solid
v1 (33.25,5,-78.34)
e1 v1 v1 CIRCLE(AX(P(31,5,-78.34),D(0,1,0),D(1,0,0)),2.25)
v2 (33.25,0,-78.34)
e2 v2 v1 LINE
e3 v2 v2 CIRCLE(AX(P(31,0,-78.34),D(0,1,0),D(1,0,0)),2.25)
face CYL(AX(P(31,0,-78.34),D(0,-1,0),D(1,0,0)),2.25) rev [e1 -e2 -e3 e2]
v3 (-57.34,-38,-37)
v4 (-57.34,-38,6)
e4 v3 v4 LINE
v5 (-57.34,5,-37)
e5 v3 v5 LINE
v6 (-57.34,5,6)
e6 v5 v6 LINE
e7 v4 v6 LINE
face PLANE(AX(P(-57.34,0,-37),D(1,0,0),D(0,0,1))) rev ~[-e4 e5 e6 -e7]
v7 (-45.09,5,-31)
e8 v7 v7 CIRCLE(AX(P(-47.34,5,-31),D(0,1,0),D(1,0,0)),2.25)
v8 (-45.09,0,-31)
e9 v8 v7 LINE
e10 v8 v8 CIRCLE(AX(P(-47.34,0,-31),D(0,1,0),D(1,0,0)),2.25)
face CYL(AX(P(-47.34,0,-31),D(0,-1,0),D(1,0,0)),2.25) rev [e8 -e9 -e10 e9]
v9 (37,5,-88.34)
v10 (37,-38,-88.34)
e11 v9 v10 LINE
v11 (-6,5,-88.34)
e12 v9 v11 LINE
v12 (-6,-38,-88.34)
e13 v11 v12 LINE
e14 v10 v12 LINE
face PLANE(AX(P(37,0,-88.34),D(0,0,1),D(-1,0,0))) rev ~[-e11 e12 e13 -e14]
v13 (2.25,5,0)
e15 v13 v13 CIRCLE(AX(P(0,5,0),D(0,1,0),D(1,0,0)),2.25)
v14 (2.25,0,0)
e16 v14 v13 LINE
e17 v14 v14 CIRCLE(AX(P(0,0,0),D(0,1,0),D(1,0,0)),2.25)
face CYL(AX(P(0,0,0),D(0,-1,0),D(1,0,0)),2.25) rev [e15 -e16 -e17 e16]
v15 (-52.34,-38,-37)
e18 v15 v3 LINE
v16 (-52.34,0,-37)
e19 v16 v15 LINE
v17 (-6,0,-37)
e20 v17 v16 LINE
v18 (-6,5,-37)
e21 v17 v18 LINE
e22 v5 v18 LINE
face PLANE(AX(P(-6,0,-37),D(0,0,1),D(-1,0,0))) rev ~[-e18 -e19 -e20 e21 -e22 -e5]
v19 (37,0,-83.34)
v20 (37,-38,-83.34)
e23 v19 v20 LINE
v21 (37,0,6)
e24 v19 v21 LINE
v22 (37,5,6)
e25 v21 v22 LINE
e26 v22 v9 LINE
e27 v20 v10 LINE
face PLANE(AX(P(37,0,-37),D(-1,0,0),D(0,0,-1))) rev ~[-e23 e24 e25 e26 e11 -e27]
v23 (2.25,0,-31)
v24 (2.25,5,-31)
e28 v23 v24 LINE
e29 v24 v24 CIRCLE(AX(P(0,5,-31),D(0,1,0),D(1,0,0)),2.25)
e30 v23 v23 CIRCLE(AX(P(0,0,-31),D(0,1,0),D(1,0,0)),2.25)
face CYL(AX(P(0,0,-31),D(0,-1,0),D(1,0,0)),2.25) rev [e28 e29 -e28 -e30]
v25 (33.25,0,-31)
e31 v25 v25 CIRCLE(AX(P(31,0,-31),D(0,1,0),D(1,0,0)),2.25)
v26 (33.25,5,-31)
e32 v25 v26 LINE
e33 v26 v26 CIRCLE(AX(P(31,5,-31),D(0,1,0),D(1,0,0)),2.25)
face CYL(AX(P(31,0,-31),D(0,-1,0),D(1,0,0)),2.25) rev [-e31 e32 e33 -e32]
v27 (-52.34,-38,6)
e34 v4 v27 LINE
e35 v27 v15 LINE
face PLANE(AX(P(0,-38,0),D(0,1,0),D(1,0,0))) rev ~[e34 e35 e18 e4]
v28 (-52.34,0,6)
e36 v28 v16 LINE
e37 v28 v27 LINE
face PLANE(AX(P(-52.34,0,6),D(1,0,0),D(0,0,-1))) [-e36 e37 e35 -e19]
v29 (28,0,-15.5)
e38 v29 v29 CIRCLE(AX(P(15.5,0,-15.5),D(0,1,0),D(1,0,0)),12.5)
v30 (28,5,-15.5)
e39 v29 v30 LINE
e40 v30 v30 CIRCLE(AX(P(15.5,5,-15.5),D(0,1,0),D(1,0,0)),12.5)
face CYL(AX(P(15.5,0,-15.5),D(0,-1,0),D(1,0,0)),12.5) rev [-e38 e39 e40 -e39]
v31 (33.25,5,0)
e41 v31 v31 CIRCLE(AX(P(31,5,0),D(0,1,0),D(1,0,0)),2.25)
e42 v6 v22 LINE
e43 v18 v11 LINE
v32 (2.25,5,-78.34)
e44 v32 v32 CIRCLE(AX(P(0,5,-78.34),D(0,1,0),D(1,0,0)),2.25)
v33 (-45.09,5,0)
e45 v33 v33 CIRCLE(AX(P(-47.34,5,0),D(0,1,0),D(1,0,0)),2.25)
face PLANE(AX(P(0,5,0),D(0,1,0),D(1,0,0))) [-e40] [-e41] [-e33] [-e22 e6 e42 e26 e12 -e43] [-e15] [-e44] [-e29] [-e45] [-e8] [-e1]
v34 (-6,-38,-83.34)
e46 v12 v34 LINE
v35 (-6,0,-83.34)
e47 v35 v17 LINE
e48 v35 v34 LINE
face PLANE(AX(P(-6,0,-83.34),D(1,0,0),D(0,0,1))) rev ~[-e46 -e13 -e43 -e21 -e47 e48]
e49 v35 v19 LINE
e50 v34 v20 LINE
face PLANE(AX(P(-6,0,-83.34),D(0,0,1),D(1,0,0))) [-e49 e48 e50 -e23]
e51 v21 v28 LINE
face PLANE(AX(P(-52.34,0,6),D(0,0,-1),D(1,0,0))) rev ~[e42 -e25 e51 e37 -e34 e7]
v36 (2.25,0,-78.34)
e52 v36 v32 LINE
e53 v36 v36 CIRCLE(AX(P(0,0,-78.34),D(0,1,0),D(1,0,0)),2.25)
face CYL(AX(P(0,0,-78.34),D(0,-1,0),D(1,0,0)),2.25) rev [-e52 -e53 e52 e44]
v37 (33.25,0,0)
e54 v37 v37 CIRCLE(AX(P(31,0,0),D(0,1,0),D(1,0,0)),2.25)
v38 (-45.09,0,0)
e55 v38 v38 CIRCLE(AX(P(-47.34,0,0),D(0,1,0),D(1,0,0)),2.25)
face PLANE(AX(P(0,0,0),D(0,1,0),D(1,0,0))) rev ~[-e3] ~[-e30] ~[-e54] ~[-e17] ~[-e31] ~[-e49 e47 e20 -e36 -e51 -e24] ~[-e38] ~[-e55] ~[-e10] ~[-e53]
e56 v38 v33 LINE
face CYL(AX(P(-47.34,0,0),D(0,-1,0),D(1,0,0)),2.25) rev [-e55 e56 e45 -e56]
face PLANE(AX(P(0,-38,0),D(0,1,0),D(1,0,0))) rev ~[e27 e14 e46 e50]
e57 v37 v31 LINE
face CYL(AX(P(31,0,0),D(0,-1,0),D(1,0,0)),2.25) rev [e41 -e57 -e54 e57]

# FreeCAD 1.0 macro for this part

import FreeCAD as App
import Part
import Sketcher
Q = App.Units.Quantity

doc = App.newDocument("Part")
params = doc.addObject("Spreadsheet::Sheet", "Params")
for row, (alias, value) in enumerate([
    ("sketch1_diameter", "25 mm"),
    ("sketch1_diameter2", "4.5 mm"),
    ("sketch1_width", "43 mm"),
    ("sketch1_width2", "51.34 mm"),
    ("pad1_length", "5 mm"),
    ("sketch2_width", "43 mm"),
    ("sketch2_width2", "5 mm"),
    ("pad2_length", "38 mm"),
], start=1):
    params.set(f"A{row}", alias)
    params.set(f"B{row}", "=" + value)
    params.setAlias(f"B{row}", alias)

body = doc.addObject("PartDesign::Body", "Body")

# Sketch on XZ plane
sketch1 = body.newObject("Sketcher::SketchObject", "Sketch")
sketch1.AttachmentSupport = (doc.getObject("XZ_Plane"), [""])
sketch1.MapMode = "FlatFace"
sketch1.addGeometry([
    Part.LineSegment(App.Vector(-6, -37, 0), App.Vector(-57.34, -37, 0)),  # 0
    Part.LineSegment(App.Vector(-57.34, -37, 0), App.Vector(-57.34, 6, 0)),  # 1
    Part.LineSegment(App.Vector(-57.34, 6, 0), App.Vector(37, 6, 0)),  # 2
    Part.LineSegment(App.Vector(37, 6, 0), App.Vector(37, -88.34, 0)),  # 3
    Part.LineSegment(App.Vector(37, -88.34, 0), App.Vector(-6, -88.34, 0)),  # 4
    Part.LineSegment(App.Vector(-6, -88.34, 0), App.Vector(-6, -37, 0)),  # 5
    Part.Circle(App.Vector(0, -78.34, 0), App.Vector(0, 0, 1), 2.25),  # 6
    Part.Circle(App.Vector(31, -78.34, 0), App.Vector(0, 0, 1), 2.25),  # 7
    Part.Circle(App.Vector(31, -31, 0), App.Vector(0, 0, 1), 2.25),  # 8
    Part.Circle(App.Vector(0, 0, 0), App.Vector(0, 0, 1), 2.25),  # 9
    Part.Circle(App.Vector(31, 0, 0), App.Vector(0, 0, 1), 2.25),  # 10
    Part.Circle(App.Vector(15.5, -15.5, 0), App.Vector(0, 0, 1), 12.5),  # 11
    Part.Circle(App.Vector(0, -31, 0), App.Vector(0, 0, 1), 2.25),  # 12
    Part.Circle(App.Vector(-47.34, -31, 0), App.Vector(0, 0, 1), 2.25),  # 13
    Part.Circle(App.Vector(-47.34, 0, 0), App.Vector(0, 0, 1), 2.25),  # 14
], False)
sketch1.addConstraint([
    Sketcher.Constraint("Coincident", 0, 2, 1, 1),
    Sketcher.Constraint("Coincident", 1, 2, 2, 1),
    Sketcher.Constraint("Coincident", 2, 2, 3, 1),
    Sketcher.Constraint("Coincident", 3, 2, 4, 1),
    Sketcher.Constraint("Coincident", 4, 2, 5, 1),
    Sketcher.Constraint("Coincident", 5, 2, 0, 1),
    Sketcher.Constraint("Horizontal", 0),
    Sketcher.Constraint("Vertical", 1),
    Sketcher.Constraint("Horizontal", 2),
    Sketcher.Constraint("Vertical", 3),
    Sketcher.Constraint("Horizontal", 4),
    Sketcher.Constraint("Vertical", 5),
    Sketcher.Constraint("Coincident", 9, 3, -1, 1),
    Sketcher.Constraint("Equal", 6, 7),
    Sketcher.Constraint("Equal", 7, 8),
    Sketcher.Constraint("Equal", 8, 9),
    Sketcher.Constraint("Equal", 9, 10),
    Sketcher.Constraint("Equal", 10, 12),
    Sketcher.Constraint("Equal", 12, 13),
    Sketcher.Constraint("Equal", 13, 14),
    Sketcher.Constraint("PointOnObject", 6, 3, -2),
    Sketcher.Constraint("PointOnObject", 10, 3, -1),
    Sketcher.Constraint("PointOnObject", 12, 3, -2),
    Sketcher.Constraint("PointOnObject", 14, 3, -1),
    Sketcher.Constraint("Horizontal", 6, 3, 7, 3),
    Sketcher.Constraint("Horizontal", 8, 3, 12, 3),
    Sketcher.Constraint("Horizontal", 12, 3, 13, 3),
    Sketcher.Constraint("Vertical", 7, 3, 8, 3),
    Sketcher.Constraint("Vertical", 8, 3, 10, 3),
    Sketcher.Constraint("Vertical", 13, 3, 14, 3),
    Sketcher.Constraint("Equal", 4, 1),
    Sketcher.Constraint("Equal", 2, 3),
    Sketcher.Constraint("Diameter", 11, Q("25 mm")),
    Sketcher.Constraint("Diameter", 6, Q("4.5 mm")),
    Sketcher.Constraint("DistanceX", 4, 2, 4, 1, Q("43 mm")),
    Sketcher.Constraint("DistanceX", -1, 1, 7, 3, Q("31 mm")),
    Sketcher.Constraint("DistanceY", 8, 3, -1, 1, Q("31 mm")),
    Sketcher.Constraint("DistanceY", -1, 1, 1, 2, Q("6 mm")),
    Sketcher.Constraint("DistanceX", 4, 2, -1, 1, Q("6 mm")),
    Sketcher.Constraint("DistanceX", 0, 2, 13, 3, Q("10 mm")),
    Sketcher.Constraint("DistanceY", 3, 2, 7, 3, Q("10 mm")),
    Sketcher.Constraint("DistanceY", 6, 3, 11, 3, Q("62.84 mm")),
    Sketcher.Constraint("DistanceX", 13, 3, 11, 3, Q("62.84 mm")),
    Sketcher.Constraint("DistanceX", 0, 2, 0, 1, Q("51.34 mm")),
])
sketch1.setExpression("Constraints[32]", "Params.sketch1_diameter")
sketch1.setExpression("Constraints[33]", "Params.sketch1_diameter2")
sketch1.setExpression("Constraints[34]", "Params.sketch1_width")
sketch1.setExpression("Constraints[43]", "Params.sketch1_width2")
pad1 = body.newObject("PartDesign::Pad", "Pad")
pad1.Profile = sketch1
pad1.setExpression("Length", "Params.pad1_length")
pad1.Reversed = True

# Sketch on XZ plane
sketch2 = body.newObject("Sketcher::SketchObject", "Sketch001")
sketch2.AttachmentSupport = (doc.getObject("XZ_Plane"), [""])
sketch2.MapMode = "FlatFace"
sketch2.addGeometry([
    Part.LineSegment(App.Vector(-6, -88.34, 0), App.Vector(-6, -83.34, 0)),  # 0
    Part.LineSegment(App.Vector(-6, -83.34, 0), App.Vector(37, -83.34, 0)),  # 1
    Part.LineSegment(App.Vector(37, -83.34, 0), App.Vector(37, -88.34, 0)),  # 2
    Part.LineSegment(App.Vector(37, -88.34, 0), App.Vector(-6, -88.34, 0)),  # 3
    Part.LineSegment(App.Vector(-52.34, 6, 0), App.Vector(-52.34, -37, 0)),  # 4
    Part.LineSegment(App.Vector(-52.34, -37, 0), App.Vector(-57.34, -37, 0)),  # 5
    Part.LineSegment(App.Vector(-57.34, -37, 0), App.Vector(-57.34, 6, 0)),  # 6
    Part.LineSegment(App.Vector(-57.34, 6, 0), App.Vector(-52.34, 6, 0)),  # 7
], False)
sketch2.addConstraint([
    Sketcher.Constraint("Coincident", 0, 2, 1, 1),
    Sketcher.Constraint("Coincident", 1, 2, 2, 1),
    Sketcher.Constraint("Coincident", 2, 2, 3, 1),
    Sketcher.Constraint("Coincident", 3, 2, 0, 1),
    Sketcher.Constraint("Coincident", 4, 2, 5, 1),
    Sketcher.Constraint("Coincident", 5, 2, 6, 1),
    Sketcher.Constraint("Coincident", 6, 2, 7, 1),
    Sketcher.Constraint("Coincident", 7, 2, 4, 1),
    Sketcher.Constraint("Vertical", 0),
    Sketcher.Constraint("Horizontal", 1),
    Sketcher.Constraint("Vertical", 2),
    Sketcher.Constraint("Horizontal", 3),
    Sketcher.Constraint("Vertical", 4),
    Sketcher.Constraint("Horizontal", 5),
    Sketcher.Constraint("Vertical", 6),
    Sketcher.Constraint("Horizontal", 7),
    Sketcher.Constraint("Equal", 7, 0),
    Sketcher.Constraint("Equal", 3, 4),
    Sketcher.Constraint("DistanceX", 1, 1, 1, 2, Q("43 mm")),
    Sketcher.Constraint("DistanceX", 5, 2, 5, 1, Q("5 mm")),
    Sketcher.Constraint("DistanceX", 0, 2, -1, 1, Q("6 mm")),
    Sketcher.Constraint("DistanceY", -1, 1, 6, 2, Q("6 mm")),
    Sketcher.Constraint("DistanceY", 0, 2, -1, 1, Q("83.34 mm")),
    Sketcher.Constraint("DistanceX", 4, 2, -1, 1, Q("52.34 mm")),
])
sketch2.setExpression("Constraints[18]", "Params.sketch2_width")
sketch2.setExpression("Constraints[19]", "Params.sketch2_width2")
pad2 = body.newObject("PartDesign::Pad", "Pad001")
pad2.Profile = sketch2
pad2.setExpression("Length", "Params.pad2_length")

doc.recompute()
